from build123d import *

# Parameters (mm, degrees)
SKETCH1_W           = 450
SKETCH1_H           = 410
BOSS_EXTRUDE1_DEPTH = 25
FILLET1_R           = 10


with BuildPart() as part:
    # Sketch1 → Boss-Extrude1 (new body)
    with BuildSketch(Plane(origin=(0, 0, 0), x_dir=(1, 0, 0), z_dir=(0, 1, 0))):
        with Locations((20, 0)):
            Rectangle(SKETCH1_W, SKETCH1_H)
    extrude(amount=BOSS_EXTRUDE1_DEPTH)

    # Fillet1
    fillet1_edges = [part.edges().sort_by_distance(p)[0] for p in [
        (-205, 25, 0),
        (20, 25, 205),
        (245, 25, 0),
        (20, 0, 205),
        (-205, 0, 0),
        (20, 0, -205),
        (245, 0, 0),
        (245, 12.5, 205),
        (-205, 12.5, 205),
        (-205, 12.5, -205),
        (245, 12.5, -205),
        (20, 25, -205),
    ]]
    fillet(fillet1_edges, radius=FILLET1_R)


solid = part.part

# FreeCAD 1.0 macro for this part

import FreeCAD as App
import Part
import Sketcher

V = App.Vector


def add_polygon(sketch, points):
    """Adds a closed chain of lines whose ends are joined by coincident constraints."""
    first, n = sketch.GeometryCount, len(points)
    for a, b in zip(points, points[1:] + points[:1]):
        sketch.addGeometry(Part.LineSegment(App.Vector(*a, 0), App.Vector(*b, 0)), False)
    for i in range(n):
        sketch.addConstraint(Sketcher.Constraint("Coincident", first + i, 2, first + (i + 1) % n, 1))

doc = App.newDocument("Part")
body = doc.addObject("PartDesign::Body", "Body")

sketch1 = body.newObject("Sketcher::SketchObject", "Sketch")
sketch1.AttachmentSupport = (doc.getObject("XZ_Plane"), [""])
sketch1.MapMode = "FlatFace"
add_polygon(sketch1, [(-205, -205), (-205, 205), (245, 205), (245, -205)])
sketch1.addConstraint([
    Sketcher.Constraint("Vertical", 0),
    Sketcher.Constraint("Horizontal", 1),
    Sketcher.Constraint("Vertical", 2),
    Sketcher.Constraint("Horizontal", 3),
    Sketcher.Constraint("DistanceX", 1, 1, 1, 2, 450.0),
    Sketcher.Constraint("DistanceY", 0, 1, 0, 2, 410.0),
    Sketcher.Constraint("DistanceX", 0, 2, -1, 1, 205.0),
    Sketcher.Constraint("DistanceY", -1, 1, 0, 2, 205.0),
])
pad1 = body.newObject("PartDesign::Pad", "Pad")
pad1.Profile = sketch1
pad1.Length = 25
pad1.Reversed = True
doc.recompute()

fillet = body.newObject("PartDesign::Fillet", "Fillet")
fillet.Base = (pad1, ["Edge1"])
fillet.UseAllEdges = True
fillet.Radius = 10

doc.recompute()
